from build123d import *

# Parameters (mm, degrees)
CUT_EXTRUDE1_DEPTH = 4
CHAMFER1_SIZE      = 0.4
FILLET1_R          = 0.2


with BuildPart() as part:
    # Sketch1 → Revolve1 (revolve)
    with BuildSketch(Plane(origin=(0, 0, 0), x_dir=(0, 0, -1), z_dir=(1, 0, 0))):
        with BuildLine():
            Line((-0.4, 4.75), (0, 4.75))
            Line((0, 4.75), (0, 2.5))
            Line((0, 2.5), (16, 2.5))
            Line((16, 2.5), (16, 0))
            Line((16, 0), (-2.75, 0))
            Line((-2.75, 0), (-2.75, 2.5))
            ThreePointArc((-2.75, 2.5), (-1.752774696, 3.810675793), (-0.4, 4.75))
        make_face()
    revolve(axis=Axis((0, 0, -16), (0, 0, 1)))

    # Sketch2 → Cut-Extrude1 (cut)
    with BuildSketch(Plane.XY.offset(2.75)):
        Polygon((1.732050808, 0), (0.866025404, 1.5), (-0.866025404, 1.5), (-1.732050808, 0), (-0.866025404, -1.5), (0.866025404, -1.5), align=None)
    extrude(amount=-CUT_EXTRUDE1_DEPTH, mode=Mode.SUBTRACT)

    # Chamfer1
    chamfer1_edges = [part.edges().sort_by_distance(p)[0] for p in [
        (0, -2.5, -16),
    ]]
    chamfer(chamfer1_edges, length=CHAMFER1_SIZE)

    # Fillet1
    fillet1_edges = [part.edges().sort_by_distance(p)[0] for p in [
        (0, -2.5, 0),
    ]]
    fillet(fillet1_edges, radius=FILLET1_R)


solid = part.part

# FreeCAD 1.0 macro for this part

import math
import FreeCAD as App
import Part
import Sketcher

V = App.Vector
Q = App.Units.Quantity


def edges_at(feature, points):
    """Names of the edges that pass closest to the given points."""
    edges = feature.Shape.Edges
    near = lambda p: min(range(len(edges)), key=lambda i: edges[i].distToShape(Part.Vertex(*p))[0])
    return sorted({f"Edge{near(p) + 1}" for p in points})

doc = App.newDocument("Part")
body = doc.addObject("PartDesign::Body", "Body")

sketch1 = body.newObject("Sketcher::SketchObject", "Sketch")
sketch1.AttachmentSupport = (doc.getObject("YZ_Plane"), [""])
sketch1.MapMode = "FlatFace"
sketch1.addGeometry(Part.LineSegment(V(4.75, 0, 0), V(4.75, 0.4, 0)), False)
sketch1.addGeometry(Part.ArcOfCircle(Part.Circle(V(0, -1.9, 0), V(0, 0, 1), 5.28), math.radians(26), math.radians(62)), False)
sketch1.addGeometry(Part.LineSegment(V(2.5, 2.75, 0), V(0, 2.75, 0)), False)
sketch1.addGeometry(Part.LineSegment(V(0, 2.75, 0), V(0, -16, 0)), False)
sketch1.addGeometry(Part.LineSegment(V(0, -16, 0), V(2.5, -16, 0)), False)
sketch1.addGeometry(Part.LineSegment(V(2.5, -16, 0), V(2.5, 0, 0)), False)
sketch1.addGeometry(Part.LineSegment(V(2.5, 0, 0), V(4.75, 0, 0)), False)
sketch1.addConstraint(Sketcher.Constraint("Coincident", 0, 2, 1, 1))
sketch1.addConstraint(Sketcher.Constraint("Coincident", 1, 2, 2, 1))
sketch1.addConstraint(Sketcher.Constraint("Coincident", 2, 2, 3, 1))
sketch1.addConstraint(Sketcher.Constraint("Coincident", 3, 2, 4, 1))
sketch1.addConstraint(Sketcher.Constraint("Coincident", 4, 2, 5, 1))
sketch1.addConstraint(Sketcher.Constraint("Coincident", 5, 2, 6, 1))
sketch1.addConstraint(Sketcher.Constraint("Coincident", 6, 2, 0, 1))
sketch1.addConstraint(Sketcher.Constraint("Vertical", 0))
sketch1.addConstraint(Sketcher.Constraint("Horizontal", 2))
sketch1.addConstraint(Sketcher.Constraint("Vertical", 3))
sketch1.addConstraint(Sketcher.Constraint("Horizontal", 4))
sketch1.addConstraint(Sketcher.Constraint("Vertical", 5))
sketch1.addConstraint(Sketcher.Constraint("Horizontal", 6))
sketch1.addConstraint(Sketcher.Constraint("PointOnObject", 1, 3, -2))
sketch1.addConstraint(Sketcher.Constraint("PointOnObject", 2, 2, -2))
sketch1.addConstraint(Sketcher.Constraint("PointOnObject", 5, 2, -1))
sketch1.addConstraint(Sketcher.Constraint("Vertical", 1, 2, 4, 2))
sketch1.addConstraint(Sketcher.Constraint("DistanceY", 5, 1, 5, 2, Q("16 mm")))
sketch1.addConstraint(Sketcher.Constraint("DistanceX", 2, 2, 2, 1, Q("2.5 mm")))
sketch1.addConstraint(Sketcher.Constraint("DistanceY", 0, 1, 0, 2, Q("0.4 mm")))
sketch1.addConstraint(Sketcher.Constraint("DistanceX", 6, 1, 6, 2, Q("2.25 mm")))
sketch1.addConstraint(Sketcher.Constraint("DistanceY", 3, 2, 3, 1, Q("18.75 mm")))
revolution = body.newObject("PartDesign::Revolution", "Revolution")
revolution.Profile = sketch1
revolution.ReferenceAxis = (sketch1, ["V_Axis"])
revolution.Angle = 360

sketch2 = body.newObject("Sketcher::SketchObject", "Sketch001")
sketch2.AttachmentSupport = (doc.getObject("XY_Plane"), [""])
sketch2.MapMode = "FlatFace"
sketch2.AttachmentOffset = App.Placement(V(0, 0, 2.75), App.Rotation())
sketch2.addGeometry(Part.LineSegment(V(1.7, 0, 0), V(0.9, 1.5, 0)), False)
sketch2.addGeometry(Part.LineSegment(V(0.9, 1.5, 0), V(-0.9, 1.5, 0)), False)
sketch2.addGeometry(Part.LineSegment(V(-0.9, 1.5, 0), V(-1.7, 0, 0)), False)
sketch2.addGeometry(Part.LineSegment(V(-1.7, 0, 0), V(-0.9, -1.5, 0)), False)
sketch2.addGeometry(Part.LineSegment(V(-0.9, -1.5, 0), V(0.9, -1.5, 0)), False)
sketch2.addGeometry(Part.LineSegment(V(0.9, -1.5, 0), V(1.7, 0, 0)), False)
sketch2.addConstraint(Sketcher.Constraint("Coincident", 0, 2, 1, 1))
sketch2.addConstraint(Sketcher.Constraint("Coincident", 1, 2, 2, 1))
sketch2.addConstraint(Sketcher.Constraint("Coincident", 2, 2, 3, 1))
sketch2.addConstraint(Sketcher.Constraint("Coincident", 3, 2, 4, 1))
sketch2.addConstraint(Sketcher.Constraint("Coincident", 4, 2, 5, 1))
sketch2.addConstraint(Sketcher.Constraint("Coincident", 5, 2, 0, 1))
sketch2.addConstraint(Sketcher.Constraint("Horizontal", 1))
sketch2.addConstraint(Sketcher.Constraint("Horizontal", 4))
sketch2.addConstraint(Sketcher.Constraint("Symmetric", 0, 2, 3, 2, -1, 1))
sketch2.addConstraint(Sketcher.Constraint("Symmetric", 2, 2, 5, 2, -1, 1))
sketch2.addConstraint(Sketcher.Constraint("PointOnObject", 2, 2, -1))
sketch2.addConstraint(Sketcher.Constraint("Parallel", 2, 5))
sketch2.addConstraint(Sketcher.Constraint("Vertical", 1, 2, 3, 2))
sketch2.addConstraint(Sketcher.Constraint("Angle", 0, Q("120 deg")))
sketch2.addConstraint(Sketcher.Constraint("DistanceY", 3, 2, 1, 2, Q("3 mm")))
sketch2.addConstraint(Sketcher.Constraint("DistanceX", 1, 2, 1, 1, Q("1.732051 mm")))
pocket1 = body.newObject("PartDesign::Pocket", "Pocket")
pocket1.Profile = sketch2
pocket1.Length = 4
doc.recompute()

chamfer = body.newObject("PartDesign::Chamfer", "Chamfer")
chamfer.Base = (pocket1, edges_at(pocket1, [(0, -2.5, -16)]))
chamfer.Size = 0.4
doc.recompute()

fillet = body.newObject("PartDesign::Fillet", "Fillet")
fillet.Base = (chamfer, edges_at(chamfer, [(0, -2.5, 0)]))
fillet.Radius = 0.2

doc.recompute()
